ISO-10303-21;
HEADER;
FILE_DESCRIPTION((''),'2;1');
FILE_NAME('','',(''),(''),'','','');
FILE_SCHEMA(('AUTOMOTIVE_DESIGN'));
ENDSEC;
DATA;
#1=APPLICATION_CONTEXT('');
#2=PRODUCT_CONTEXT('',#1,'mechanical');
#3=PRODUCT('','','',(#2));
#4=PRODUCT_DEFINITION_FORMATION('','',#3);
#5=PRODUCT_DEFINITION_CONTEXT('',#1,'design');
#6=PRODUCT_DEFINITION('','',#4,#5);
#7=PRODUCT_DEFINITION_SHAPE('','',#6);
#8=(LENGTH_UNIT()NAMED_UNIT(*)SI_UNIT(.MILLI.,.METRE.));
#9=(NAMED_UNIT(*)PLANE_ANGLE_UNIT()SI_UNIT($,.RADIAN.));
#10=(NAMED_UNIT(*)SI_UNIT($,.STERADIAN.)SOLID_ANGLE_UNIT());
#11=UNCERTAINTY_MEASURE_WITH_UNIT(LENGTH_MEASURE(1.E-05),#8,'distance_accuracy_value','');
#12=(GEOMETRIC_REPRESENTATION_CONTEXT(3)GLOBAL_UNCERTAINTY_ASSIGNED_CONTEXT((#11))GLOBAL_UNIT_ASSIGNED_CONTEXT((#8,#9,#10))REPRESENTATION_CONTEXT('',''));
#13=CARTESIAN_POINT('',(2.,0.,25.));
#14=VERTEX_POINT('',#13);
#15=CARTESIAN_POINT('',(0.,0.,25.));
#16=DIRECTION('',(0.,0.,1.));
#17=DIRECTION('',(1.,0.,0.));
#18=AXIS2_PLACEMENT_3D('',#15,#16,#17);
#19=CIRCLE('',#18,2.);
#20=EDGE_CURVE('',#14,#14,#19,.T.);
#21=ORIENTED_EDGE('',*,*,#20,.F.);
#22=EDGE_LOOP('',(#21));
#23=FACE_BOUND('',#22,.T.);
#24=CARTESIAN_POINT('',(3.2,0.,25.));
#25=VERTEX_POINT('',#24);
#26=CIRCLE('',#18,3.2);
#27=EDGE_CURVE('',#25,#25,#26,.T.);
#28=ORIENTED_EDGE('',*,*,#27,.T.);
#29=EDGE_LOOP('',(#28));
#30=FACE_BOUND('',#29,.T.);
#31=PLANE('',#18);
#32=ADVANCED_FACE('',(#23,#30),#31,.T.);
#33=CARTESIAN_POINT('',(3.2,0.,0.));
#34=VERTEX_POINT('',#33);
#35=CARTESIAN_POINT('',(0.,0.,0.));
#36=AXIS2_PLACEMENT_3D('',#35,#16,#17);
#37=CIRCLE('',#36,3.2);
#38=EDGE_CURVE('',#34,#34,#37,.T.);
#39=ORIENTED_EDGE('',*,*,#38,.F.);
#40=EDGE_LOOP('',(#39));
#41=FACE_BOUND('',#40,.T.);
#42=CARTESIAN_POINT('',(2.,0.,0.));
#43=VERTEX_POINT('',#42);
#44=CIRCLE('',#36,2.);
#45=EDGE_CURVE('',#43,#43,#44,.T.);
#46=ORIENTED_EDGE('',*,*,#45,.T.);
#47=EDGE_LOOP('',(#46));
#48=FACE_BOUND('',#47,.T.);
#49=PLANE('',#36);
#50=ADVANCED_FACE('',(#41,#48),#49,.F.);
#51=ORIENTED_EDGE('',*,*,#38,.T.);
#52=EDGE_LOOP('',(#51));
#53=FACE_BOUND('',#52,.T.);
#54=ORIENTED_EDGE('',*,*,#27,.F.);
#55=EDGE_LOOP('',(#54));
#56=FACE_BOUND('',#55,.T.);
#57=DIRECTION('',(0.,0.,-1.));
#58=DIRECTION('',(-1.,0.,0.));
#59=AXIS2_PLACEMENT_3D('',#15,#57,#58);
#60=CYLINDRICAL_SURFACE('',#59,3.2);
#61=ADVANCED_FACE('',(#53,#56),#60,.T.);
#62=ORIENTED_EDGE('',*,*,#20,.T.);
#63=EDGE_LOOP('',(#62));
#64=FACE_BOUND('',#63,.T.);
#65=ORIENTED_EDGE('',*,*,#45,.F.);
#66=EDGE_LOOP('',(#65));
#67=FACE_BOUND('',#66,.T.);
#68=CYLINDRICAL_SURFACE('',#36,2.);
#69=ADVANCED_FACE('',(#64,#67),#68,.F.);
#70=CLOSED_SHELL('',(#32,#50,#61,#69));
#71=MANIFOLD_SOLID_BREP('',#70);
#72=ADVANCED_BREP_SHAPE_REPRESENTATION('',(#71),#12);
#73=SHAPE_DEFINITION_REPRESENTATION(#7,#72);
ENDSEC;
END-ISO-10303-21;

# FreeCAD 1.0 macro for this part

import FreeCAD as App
import Part
import Sketcher

V = App.Vector

doc = App.newDocument("Part")
body = doc.addObject("PartDesign::Body", "Body")

# Sketch on XY plane
sketch1 = body.newObject("Sketcher::SketchObject", "Sketch")
sketch1.AttachmentSupport = (doc.getObject("XY_Plane"), [""])
sketch1.MapMode = "FlatFace"
sketch1.addGeometry(Part.Circle(V(0, 0, 0), V(0, 0, 1), 3.2), False)
sketch1.addConstraint([
    Sketcher.Constraint("Coincident", 0, 3, -1, 1),
    Sketcher.Constraint("Diameter", 0, 6.4),
])
pad1 = body.newObject("PartDesign::Pad", "Pad")
pad1.Profile = sketch1
pad1.Length = 25

# Sketch on XY plane
sketch2 = body.newObject("Sketcher::SketchObject", "Sketch001")
sketch2.AttachmentSupport = (doc.getObject("XY_Plane"), [""])
sketch2.MapMode = "FlatFace"
sketch2.AttachmentOffset = App.Placement(V(0, 0, 25), App.Rotation())
sketch2.addGeometry(Part.Circle(V(0, 0, 0), V(0, 0, 1), 2), False)
sketch2.addConstraint([
    Sketcher.Constraint("Coincident", 0, 3, -1, 1),
    Sketcher.Constraint("Diameter", 0, 4.0),
])
pocket1 = body.newObject("PartDesign::Pocket", "Pocket")
pocket1.Profile = sketch2
pocket1.Length = 25

doc.recompute()
